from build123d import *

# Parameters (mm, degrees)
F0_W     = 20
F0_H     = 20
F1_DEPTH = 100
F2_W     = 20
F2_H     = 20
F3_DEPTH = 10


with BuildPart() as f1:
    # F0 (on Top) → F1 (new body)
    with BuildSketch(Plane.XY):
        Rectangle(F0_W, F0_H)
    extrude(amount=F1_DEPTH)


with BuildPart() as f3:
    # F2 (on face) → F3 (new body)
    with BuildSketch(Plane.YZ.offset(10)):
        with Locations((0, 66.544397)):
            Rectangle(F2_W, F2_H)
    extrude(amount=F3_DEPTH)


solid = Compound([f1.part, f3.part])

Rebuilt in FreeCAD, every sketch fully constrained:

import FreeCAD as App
import Part
import Sketcher
from FreeCAD import Vector

doc = App.newDocument("Part")
params = doc.addObject("Spreadsheet::Sheet", "Params")
for row, (alias, value) in enumerate([
    ("sketch1_width", "20 mm"),
    ("pad1_length", "100 mm"),
    ("sketch2_width", "20 mm"),
    ("pad2_length", "10 mm"),
], start=1):
    params.set(f"A{row}", alias)
    params.set(f"B{row}", "=" + value)
    params.setAlias(f"B{row}", alias)

body = doc.addObject("PartDesign::Body", "Body")

sketch1 = body.newObject("Sketcher::SketchObject", "Sketch")
sketch1.AttachmentSupport = (doc.getObject("XY_Plane"), [""])
sketch1.MapMode = "FlatFace"
sketch1.addGeometry([
    Part.LineSegment(Vector(-10, 10, 0), Vector(-10, -10, 0)),
    Part.LineSegment(Vector(-10, -10, 0), Vector(10, -10, 0)),
    Part.LineSegment(Vector(10, -10, 0), Vector(10, 10, 0)),
    Part.LineSegment(Vector(10, 10, 0), Vector(-10, 10, 0)),
], False)
sketch1.addConstraint([
    Sketcher.Constraint("Coincident", 0, 2, 1, 1),
    Sketcher.Constraint("Coincident", 1, 2, 2, 1),
    Sketcher.Constraint("Coincident", 2, 2, 3, 1),
    Sketcher.Constraint("Coincident", 3, 2, 0, 1),
    Sketcher.Constraint("Vertical", 0),
    Sketcher.Constraint("Horizontal", 1),
    Sketcher.Constraint("Vertical", 2),
    Sketcher.Constraint("Horizontal", 3),
    Sketcher.Constraint("Symmetric", 0, 2, 2, 2, -1, 1),
    Sketcher.Constraint("Equal", 3, 0),
    Sketcher.Constraint("DistanceX", 1, 1, 1, 2, 20.0),
])
sketch1.setExpression("Constraints[10]", "Params.sketch1_width")
pad1 = body.newObject("PartDesign::Pad", "Pad")
pad1.Profile = sketch1
pad1.setExpression("Length", "Params.pad1_length")
body2 = doc.addObject("PartDesign::Body", "Body001")

sketch2 = body2.newObject("Sketcher::SketchObject", "Sketch001")
sketch2.AttachmentSupport = (doc.getObject("YZ_Plane001"), [""])
sketch2.MapMode = "FlatFace"
sketch2.AttachmentOffset = App.Placement(Vector(0, 0, 10), App.Rotation())
sketch2.addGeometry([
    Part.LineSegment(Vector(-10, 76.544397, 0), Vector(-10, 56.544397, 0)),
    Part.LineSegment(Vector(-10, 56.544397, 0), Vector(10, 56.544397, 0)),
    Part.LineSegment(Vector(10, 56.544397, 0), Vector(10, 76.544397, 0)),
    Part.LineSegment(Vector(10, 76.544397, 0), Vector(-10, 76.544397, 0)),
], False)
sketch2.addConstraint([
    Sketcher.Constraint("Coincident", 0, 2, 1, 1),
    Sketcher.Constraint("Coincident", 1, 2, 2, 1),
    Sketcher.Constraint("Coincident", 2, 2, 3, 1),
    Sketcher.Constraint("Coincident", 3, 2, 0, 1),
    Sketcher.Constraint("Vertical", 0),
    Sketcher.Constraint("Horizontal", 1),
    Sketcher.Constraint("Vertical", 2),
    Sketcher.Constraint("Horizontal", 3),
    Sketcher.Constraint("Equal", 3, 0),
    Sketcher.Constraint("DistanceX", 1, 1, 1, 2, 20.0),
    Sketcher.Constraint("DistanceX", 0, 2, -1, 1, 10.0),
    Sketcher.Constraint("DistanceY", -1, 1, 0, 2, 56.544397),
])
sketch2.setExpression("Constraints[9]", "Params.sketch2_width")
pad2 = body2.newObject("PartDesign::Pad", "Pad001")
pad2.Profile = sketch2
pad2.setExpression("Length", "Params.pad2_length")

doc.recompute()
